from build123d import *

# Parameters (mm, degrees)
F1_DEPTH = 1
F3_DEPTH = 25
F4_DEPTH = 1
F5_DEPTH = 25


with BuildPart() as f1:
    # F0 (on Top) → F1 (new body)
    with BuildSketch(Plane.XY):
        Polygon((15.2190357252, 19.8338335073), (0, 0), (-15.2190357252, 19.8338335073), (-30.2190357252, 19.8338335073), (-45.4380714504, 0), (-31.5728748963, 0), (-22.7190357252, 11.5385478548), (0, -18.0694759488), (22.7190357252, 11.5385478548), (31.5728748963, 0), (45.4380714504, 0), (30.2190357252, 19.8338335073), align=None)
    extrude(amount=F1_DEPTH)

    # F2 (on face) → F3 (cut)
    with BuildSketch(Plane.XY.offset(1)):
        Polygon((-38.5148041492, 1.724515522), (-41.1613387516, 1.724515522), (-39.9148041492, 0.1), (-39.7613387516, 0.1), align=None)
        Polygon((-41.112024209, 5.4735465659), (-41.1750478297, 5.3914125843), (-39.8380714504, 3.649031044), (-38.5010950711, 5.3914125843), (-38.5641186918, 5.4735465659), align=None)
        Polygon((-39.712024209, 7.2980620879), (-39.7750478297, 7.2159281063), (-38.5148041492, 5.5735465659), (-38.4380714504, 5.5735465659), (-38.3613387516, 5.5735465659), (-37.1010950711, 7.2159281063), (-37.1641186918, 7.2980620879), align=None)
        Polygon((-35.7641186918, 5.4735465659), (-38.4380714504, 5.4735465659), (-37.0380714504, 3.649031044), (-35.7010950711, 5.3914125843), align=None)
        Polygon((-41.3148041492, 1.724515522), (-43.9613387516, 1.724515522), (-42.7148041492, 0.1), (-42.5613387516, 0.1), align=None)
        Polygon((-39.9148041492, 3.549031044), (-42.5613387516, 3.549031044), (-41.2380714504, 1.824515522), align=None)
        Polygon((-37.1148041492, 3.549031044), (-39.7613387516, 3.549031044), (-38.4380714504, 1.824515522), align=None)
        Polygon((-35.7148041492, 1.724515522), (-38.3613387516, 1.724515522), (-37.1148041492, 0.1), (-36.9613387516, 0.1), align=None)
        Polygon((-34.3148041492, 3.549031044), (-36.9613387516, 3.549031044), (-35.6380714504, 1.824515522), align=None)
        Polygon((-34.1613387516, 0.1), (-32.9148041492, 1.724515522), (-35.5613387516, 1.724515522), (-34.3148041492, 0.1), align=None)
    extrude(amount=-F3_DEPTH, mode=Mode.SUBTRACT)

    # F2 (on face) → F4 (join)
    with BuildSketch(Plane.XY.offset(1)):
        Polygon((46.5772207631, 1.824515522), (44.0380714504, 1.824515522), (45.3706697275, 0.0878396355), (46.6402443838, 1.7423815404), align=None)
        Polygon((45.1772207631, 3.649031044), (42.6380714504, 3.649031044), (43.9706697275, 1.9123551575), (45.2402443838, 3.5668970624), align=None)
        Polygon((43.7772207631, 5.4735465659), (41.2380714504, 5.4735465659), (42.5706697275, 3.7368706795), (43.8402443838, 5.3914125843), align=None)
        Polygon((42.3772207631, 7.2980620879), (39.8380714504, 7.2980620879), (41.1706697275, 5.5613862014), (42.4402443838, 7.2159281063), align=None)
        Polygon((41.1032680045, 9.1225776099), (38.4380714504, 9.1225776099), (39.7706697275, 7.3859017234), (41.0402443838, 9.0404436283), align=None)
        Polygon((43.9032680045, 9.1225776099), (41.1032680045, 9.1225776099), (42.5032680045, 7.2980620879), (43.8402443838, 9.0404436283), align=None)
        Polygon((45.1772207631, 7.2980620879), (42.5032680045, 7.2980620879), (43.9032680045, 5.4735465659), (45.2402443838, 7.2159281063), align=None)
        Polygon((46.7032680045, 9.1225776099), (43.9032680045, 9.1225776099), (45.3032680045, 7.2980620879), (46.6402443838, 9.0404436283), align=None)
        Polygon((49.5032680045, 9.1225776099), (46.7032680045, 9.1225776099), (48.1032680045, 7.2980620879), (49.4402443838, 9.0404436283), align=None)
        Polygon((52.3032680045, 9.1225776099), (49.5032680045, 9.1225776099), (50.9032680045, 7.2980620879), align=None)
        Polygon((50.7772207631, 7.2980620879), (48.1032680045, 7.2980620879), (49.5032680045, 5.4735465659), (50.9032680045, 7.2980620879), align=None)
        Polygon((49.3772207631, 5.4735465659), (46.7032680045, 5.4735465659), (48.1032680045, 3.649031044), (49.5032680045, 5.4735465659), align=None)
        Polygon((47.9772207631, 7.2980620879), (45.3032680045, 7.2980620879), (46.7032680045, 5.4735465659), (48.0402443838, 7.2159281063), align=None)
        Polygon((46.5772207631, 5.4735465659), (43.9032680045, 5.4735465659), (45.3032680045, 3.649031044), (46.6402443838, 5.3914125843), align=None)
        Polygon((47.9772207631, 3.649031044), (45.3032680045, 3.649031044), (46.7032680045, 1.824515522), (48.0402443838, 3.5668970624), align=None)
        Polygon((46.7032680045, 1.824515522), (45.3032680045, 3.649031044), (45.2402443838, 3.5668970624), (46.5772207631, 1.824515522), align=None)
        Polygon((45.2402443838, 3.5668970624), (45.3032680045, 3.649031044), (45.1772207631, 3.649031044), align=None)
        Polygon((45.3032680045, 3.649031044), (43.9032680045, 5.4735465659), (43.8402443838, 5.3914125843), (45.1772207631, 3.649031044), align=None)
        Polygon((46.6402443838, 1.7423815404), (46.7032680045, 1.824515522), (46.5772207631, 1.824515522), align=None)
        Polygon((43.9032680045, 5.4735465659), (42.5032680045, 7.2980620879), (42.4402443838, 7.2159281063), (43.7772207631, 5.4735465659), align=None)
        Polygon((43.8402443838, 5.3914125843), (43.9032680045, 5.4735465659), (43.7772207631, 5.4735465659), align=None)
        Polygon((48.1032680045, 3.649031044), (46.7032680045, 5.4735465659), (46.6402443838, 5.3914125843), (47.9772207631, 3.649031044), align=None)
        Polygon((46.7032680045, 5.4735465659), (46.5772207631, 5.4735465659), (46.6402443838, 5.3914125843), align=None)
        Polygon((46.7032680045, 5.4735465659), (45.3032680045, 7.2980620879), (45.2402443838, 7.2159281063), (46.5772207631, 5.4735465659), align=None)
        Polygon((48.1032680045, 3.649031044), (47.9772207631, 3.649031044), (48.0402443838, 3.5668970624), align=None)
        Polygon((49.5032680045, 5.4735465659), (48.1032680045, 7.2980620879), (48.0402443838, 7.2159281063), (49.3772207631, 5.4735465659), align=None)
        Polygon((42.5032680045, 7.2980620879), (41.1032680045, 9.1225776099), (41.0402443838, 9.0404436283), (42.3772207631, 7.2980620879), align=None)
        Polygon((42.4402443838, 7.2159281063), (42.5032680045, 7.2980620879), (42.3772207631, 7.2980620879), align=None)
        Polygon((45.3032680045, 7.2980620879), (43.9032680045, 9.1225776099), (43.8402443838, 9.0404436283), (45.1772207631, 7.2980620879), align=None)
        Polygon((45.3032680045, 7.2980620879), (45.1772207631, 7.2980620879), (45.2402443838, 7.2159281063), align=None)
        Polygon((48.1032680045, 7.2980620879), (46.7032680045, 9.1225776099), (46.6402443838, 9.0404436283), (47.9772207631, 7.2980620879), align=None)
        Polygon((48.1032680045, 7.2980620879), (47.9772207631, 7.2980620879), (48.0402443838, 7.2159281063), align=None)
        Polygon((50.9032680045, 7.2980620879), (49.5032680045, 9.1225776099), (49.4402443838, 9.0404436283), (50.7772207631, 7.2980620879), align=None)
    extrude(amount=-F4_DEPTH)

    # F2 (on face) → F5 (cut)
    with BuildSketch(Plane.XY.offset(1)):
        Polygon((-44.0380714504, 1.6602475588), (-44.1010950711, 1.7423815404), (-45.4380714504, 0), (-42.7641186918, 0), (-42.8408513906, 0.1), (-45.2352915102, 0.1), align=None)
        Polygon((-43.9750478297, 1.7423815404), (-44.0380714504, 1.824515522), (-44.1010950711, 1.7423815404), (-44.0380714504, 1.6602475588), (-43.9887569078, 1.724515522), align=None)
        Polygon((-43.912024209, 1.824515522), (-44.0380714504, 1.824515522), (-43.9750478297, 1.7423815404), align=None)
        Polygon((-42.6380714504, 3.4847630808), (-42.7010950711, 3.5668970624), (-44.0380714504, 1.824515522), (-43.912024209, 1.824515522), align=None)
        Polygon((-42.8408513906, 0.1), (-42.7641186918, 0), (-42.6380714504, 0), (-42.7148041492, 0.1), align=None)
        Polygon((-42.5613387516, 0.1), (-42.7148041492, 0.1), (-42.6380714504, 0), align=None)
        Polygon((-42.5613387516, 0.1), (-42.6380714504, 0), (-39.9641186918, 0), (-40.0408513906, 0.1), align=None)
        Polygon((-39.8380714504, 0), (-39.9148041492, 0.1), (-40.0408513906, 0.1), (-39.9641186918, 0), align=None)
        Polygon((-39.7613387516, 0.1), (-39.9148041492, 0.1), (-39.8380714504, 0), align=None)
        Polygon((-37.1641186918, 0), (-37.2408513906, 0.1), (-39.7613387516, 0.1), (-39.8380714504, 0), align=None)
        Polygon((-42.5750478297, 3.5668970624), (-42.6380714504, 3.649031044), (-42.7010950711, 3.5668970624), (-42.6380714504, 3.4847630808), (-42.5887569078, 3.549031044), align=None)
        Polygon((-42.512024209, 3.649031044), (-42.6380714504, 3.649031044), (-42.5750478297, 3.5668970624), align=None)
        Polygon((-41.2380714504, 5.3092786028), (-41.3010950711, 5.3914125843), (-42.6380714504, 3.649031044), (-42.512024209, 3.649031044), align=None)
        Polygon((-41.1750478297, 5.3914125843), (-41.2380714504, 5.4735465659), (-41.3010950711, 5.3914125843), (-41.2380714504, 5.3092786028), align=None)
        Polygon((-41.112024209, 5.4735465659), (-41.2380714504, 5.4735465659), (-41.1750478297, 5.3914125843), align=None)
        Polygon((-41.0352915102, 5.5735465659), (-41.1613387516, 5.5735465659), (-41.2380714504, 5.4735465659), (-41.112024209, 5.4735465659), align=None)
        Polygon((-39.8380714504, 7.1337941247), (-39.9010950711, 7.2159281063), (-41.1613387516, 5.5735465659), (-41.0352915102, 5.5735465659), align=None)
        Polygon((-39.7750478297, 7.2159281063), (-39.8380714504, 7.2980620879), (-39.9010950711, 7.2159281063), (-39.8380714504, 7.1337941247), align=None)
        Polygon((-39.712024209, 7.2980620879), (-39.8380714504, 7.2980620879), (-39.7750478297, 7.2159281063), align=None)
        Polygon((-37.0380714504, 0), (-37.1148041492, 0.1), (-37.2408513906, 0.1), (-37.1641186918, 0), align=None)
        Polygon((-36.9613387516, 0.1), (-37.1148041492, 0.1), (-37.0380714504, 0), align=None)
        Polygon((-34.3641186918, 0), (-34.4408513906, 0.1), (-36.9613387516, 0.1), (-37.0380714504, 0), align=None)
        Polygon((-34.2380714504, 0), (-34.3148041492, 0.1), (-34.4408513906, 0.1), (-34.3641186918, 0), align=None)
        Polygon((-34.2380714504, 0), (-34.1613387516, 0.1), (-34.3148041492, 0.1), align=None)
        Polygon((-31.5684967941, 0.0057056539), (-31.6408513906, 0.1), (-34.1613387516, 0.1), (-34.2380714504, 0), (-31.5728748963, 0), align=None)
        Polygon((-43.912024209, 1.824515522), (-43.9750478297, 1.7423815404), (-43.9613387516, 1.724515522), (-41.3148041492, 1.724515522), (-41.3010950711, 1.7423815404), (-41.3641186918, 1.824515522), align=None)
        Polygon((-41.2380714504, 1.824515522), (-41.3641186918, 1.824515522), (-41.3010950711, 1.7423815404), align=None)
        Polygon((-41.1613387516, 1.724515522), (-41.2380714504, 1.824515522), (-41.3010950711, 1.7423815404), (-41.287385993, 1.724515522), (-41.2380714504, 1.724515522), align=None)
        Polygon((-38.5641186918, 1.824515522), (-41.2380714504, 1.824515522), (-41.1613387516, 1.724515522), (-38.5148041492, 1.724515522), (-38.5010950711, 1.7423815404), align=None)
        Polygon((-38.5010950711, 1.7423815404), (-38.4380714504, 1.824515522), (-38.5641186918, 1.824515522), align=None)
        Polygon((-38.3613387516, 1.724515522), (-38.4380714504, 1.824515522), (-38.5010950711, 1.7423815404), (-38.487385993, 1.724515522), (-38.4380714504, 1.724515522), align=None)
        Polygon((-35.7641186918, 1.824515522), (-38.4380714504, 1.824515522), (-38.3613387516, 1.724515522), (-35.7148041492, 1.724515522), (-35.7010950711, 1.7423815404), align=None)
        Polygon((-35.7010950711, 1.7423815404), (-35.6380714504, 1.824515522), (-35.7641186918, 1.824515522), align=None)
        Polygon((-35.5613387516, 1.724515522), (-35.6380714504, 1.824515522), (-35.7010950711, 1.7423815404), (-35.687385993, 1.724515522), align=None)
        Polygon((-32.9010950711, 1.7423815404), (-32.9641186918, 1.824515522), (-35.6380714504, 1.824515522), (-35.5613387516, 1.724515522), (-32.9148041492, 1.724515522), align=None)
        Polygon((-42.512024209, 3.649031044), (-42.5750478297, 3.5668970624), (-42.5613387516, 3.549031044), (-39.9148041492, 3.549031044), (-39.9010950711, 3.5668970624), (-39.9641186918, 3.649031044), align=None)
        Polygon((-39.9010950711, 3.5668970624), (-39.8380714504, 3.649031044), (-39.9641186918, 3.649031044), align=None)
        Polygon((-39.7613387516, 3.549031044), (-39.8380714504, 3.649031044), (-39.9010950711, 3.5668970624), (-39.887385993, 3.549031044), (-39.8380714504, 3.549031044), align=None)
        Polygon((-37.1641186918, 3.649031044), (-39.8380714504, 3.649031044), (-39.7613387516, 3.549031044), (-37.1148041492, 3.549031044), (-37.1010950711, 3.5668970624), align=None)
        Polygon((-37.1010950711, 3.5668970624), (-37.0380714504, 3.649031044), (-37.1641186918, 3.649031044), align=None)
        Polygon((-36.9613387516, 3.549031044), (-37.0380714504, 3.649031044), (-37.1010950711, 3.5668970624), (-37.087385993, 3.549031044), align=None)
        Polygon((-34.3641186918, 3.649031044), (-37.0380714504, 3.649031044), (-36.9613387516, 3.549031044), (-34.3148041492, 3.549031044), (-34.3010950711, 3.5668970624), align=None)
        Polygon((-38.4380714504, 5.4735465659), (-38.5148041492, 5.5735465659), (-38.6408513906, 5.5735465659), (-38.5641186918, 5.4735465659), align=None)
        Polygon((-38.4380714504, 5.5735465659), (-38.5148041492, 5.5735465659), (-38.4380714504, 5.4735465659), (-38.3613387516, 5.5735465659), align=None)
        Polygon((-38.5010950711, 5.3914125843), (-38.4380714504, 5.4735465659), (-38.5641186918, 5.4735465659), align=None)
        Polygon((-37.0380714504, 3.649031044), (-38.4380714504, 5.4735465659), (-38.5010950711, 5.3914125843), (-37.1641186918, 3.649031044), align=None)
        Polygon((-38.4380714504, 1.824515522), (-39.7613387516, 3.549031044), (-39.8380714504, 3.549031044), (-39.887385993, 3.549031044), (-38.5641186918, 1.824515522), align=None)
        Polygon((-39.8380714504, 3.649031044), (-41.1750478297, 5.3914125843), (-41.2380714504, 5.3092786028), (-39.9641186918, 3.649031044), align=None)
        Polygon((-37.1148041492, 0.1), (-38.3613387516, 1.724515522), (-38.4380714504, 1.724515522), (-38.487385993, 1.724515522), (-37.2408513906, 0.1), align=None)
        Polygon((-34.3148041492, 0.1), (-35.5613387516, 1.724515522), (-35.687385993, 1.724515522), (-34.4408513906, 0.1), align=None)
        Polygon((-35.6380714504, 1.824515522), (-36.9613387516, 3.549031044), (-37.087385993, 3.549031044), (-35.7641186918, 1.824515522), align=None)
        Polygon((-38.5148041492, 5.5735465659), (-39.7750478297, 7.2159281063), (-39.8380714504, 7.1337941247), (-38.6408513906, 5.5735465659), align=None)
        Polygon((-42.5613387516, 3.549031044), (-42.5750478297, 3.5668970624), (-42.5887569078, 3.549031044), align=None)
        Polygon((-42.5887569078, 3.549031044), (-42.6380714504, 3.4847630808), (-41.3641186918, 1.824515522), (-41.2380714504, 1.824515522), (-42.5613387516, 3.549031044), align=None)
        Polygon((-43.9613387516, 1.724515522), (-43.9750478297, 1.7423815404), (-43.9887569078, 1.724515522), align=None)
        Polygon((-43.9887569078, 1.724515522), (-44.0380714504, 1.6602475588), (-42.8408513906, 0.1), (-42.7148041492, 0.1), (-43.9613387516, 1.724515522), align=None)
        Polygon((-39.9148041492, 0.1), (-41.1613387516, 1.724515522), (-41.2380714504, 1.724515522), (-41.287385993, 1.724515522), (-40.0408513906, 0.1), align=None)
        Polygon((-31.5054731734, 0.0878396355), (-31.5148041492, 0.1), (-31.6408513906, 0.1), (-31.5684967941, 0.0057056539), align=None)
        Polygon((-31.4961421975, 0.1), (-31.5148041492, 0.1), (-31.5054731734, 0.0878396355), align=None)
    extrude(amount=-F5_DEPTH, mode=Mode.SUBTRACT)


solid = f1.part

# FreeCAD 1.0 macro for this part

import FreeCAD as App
import Part
import Sketcher

V = App.Vector
Q = App.Units.Quantity


def add_polygon(sketch, points):
    """Adds a closed chain of lines whose ends are joined by coincident constraints."""
    first, n = sketch.GeometryCount, len(points)
    for a, b in zip(points, points[1:] + points[:1]):
        sketch.addGeometry(Part.LineSegment(App.Vector(*a, 0), App.Vector(*b, 0)), False)
    for i in range(n):
        sketch.addConstraint(Sketcher.Constraint("Coincident", first + i, 2, first + (i + 1) % n, 1))

doc = App.newDocument("Part")
body = doc.addObject("PartDesign::Body", "Body")
body.AllowCompound = True

# Sketch on XY plane
sketch1 = doc.addObject("Sketcher::SketchObject", "Sketch")
body.addObject(sketch1)
sketch1.AttachmentSupport = (doc.XY_Plane, [""])
sketch1.MapMode = "FlatFace"
add_polygon(sketch1, [(15, 20), (0, 0), (-15, 20), (-30, 20), (-45, 0), (-32, 0), (-23, 12), (0, -18), (23, 12), (32, 0), (45, 0), (30, 20)])  # lines 0-11
sketch1.addConstraint(Sketcher.Constraint("Horizontal", 2))
sketch1.addConstraint(Sketcher.Constraint("Horizontal", 4))
sketch1.addConstraint(Sketcher.Constraint("Horizontal", 9))
sketch1.addConstraint(Sketcher.Constraint("Horizontal", 11))
sketch1.addConstraint(Sketcher.Constraint("Coincident", 0, 2, -1, 1))
sketch1.addConstraint(Sketcher.Constraint("Symmetric", 4, 2, 8, 2, -1, 1))
sketch1.addConstraint(Sketcher.Constraint("Symmetric", 5, 2, 7, 2, -2))
sketch1.addConstraint(Sketcher.Constraint("Symmetric", 3, 2, 9, 2, -2))
sketch1.addConstraint(Sketcher.Constraint("Symmetric", 2, 2, 10, 2, -2))
sketch1.addConstraint(Sketcher.Constraint("PointOnObject", 6, 2, -2))
sketch1.addConstraint(Sketcher.Constraint("Parallel", 0, 3))
sketch1.addConstraint(Sketcher.Constraint("Parallel", 3, 5))
sketch1.addConstraint(Sketcher.Constraint("Parallel", 1, 6))
sketch1.addConstraint(Sketcher.Constraint("Parallel", 5, 7))
sketch1.addConstraint(Sketcher.Constraint("DistanceX", 2, 2, 2, 1, Q("15 mm")))
sketch1.addConstraint(Sketcher.Constraint("Distance", 0, Q("25 mm")))
sketch1.addConstraint(Sketcher.Constraint("Angle", 0, Q("-127.5 deg")))
sketch1.addConstraint(Sketcher.Constraint("DistanceX", 2, 2, 5, 2, Q("7.5 mm")))
sketch1.addConstraint(Sketcher.Constraint("Distance", 5, Q("14.544021 mm")))
pad1 = doc.addObject("PartDesign::Pad", "Pad")
body.addObject(pad1)
pad1.Profile = sketch1
pad1.Length = 1

# Sketch on XY plane
sketch2 = doc.addObject("Sketcher::SketchObject", "Sketch001")
body.addObject(sketch2)
sketch2.AttachmentSupport = (doc.XY_Plane, [""])
sketch2.MapMode = "FlatFace"
sketch2.AttachmentOffset = App.Placement(V(0, 0, 1), App.Rotation())
add_polygon(sketch2, [(-38.51, 1.72), (-41.16, 1.72), (-39.91, 0.1), (-39.76, 0.1)])  # lines 0-3
add_polygon(sketch2, [(-41.11, 5.47), (-41.18, 5.39), (-39.84, 3.65), (-38.5, 5.39), (-38.56, 5.47)])  # lines 4-8
add_polygon(sketch2, [(-39.71, 7.3), (-39.78, 7.22), (-38.51, 5.57), (-38.36, 5.57), (-37.1, 7.22), (-37.16, 7.3)])  # lines 9-14
add_polygon(sketch2, [(-35.76, 5.47), (-38.44, 5.47), (-37.04, 3.65), (-35.7, 5.39)])  # lines 15-18
add_polygon(sketch2, [(-41.31, 1.72), (-43.96, 1.72), (-42.71, 0.1), (-42.56, 0.1)])  # lines 19-22
add_polygon(sketch2, [(-39.91, 3.55), (-42.56, 3.55), (-41.24, 1.82)])  # lines 23-25
add_polygon(sketch2, [(-37.11, 3.55), (-39.76, 3.55), (-38.44, 1.82)])  # lines 26-28
add_polygon(sketch2, [(-35.71, 1.72), (-38.36, 1.72), (-37.11, 0.1), (-36.96, 0.1)])  # lines 29-32
add_polygon(sketch2, [(-34.31, 3.55), (-36.96, 3.55), (-35.64, 1.82)])  # lines 33-35
add_polygon(sketch2, [(-34.16, 0.1), (-32.91, 1.72), (-35.56, 1.72), (-34.31, 0.1)])  # lines 36-39
sketch2.addConstraint(Sketcher.Constraint("Horizontal", 0))
sketch2.addConstraint(Sketcher.Constraint("Horizontal", 2))
sketch2.addConstraint(Sketcher.Constraint("Horizontal", 8))
sketch2.addConstraint(Sketcher.Constraint("Horizontal", 11))
sketch2.addConstraint(Sketcher.Constraint("Horizontal", 14))
sketch2.addConstraint(Sketcher.Constraint("Horizontal", 15))
sketch2.addConstraint(Sketcher.Constraint("Horizontal", 19))
sketch2.addConstraint(Sketcher.Constraint("Horizontal", 21))
sketch2.addConstraint(Sketcher.Constraint("Horizontal", 23))
sketch2.addConstraint(Sketcher.Constraint("Horizontal", 26))
sketch2.addConstraint(Sketcher.Constraint("Horizontal", 29))
sketch2.addConstraint(Sketcher.Constraint("Horizontal", 31))
sketch2.addConstraint(Sketcher.Constraint("Horizontal", 33))
sketch2.addConstraint(Sketcher.Constraint("Horizontal", 37))
sketch2.addConstraint(Sketcher.Constraint("Horizontal", 39))
sketch2.addConstraint(Sketcher.Constraint("Parallel", 3, 4))
sketch2.addConstraint(Sketcher.Constraint("Parallel", 1, 5))
sketch2.addConstraint(Sketcher.Constraint("Parallel", 4, 6))
sketch2.addConstraint(Sketcher.Constraint("Parallel", 5, 7))
sketch2.addConstraint(Sketcher.Constraint("Parallel", 6, 9))
sketch2.addConstraint(Sketcher.Constraint("Parallel", 7, 10))
sketch2.addConstraint(Sketcher.Constraint("Parallel", 9, 12))
sketch2.addConstraint(Sketcher.Constraint("Parallel", 10, 13))
sketch2.addConstraint(Sketcher.Constraint("Parallel", 13, 16))
sketch2.addConstraint(Sketcher.Constraint("Parallel", 12, 17))
sketch2.addConstraint(Sketcher.Constraint("Parallel", 16, 18))
sketch2.addConstraint(Sketcher.Constraint("Parallel", 18, 20))
sketch2.addConstraint(Sketcher.Constraint("Parallel", 17, 22))
sketch2.addConstraint(Sketcher.Constraint("Parallel", 20, 24))
sketch2.addConstraint(Sketcher.Constraint("Parallel", 22, 25))
sketch2.addConstraint(Sketcher.Constraint("Parallel", 24, 27))
sketch2.addConstraint(Sketcher.Constraint("Parallel", 25, 28))
sketch2.addConstraint(Sketcher.Constraint("Parallel", 27, 30))
sketch2.addConstraint(Sketcher.Constraint("Parallel", 28, 32))
sketch2.addConstraint(Sketcher.Constraint("Parallel", 30, 34))
sketch2.addConstraint(Sketcher.Constraint("Parallel", 32, 35))
sketch2.addConstraint(Sketcher.Constraint("Parallel", 35, 36))
sketch2.addConstraint(Sketcher.Constraint("Parallel", 34, 38))
sketch2.addConstraint(Sketcher.Constraint("Horizontal", 4, 2, 6, 2))
sketch2.addConstraint(Sketcher.Constraint("Horizontal", 9, 2, 12, 2))
sketch2.addConstraint(Sketcher.Constraint("Horizontal", 8, 2, 15, 2))
sketch2.addConstraint(Sketcher.Constraint("Horizontal", 5, 2, 16, 2))
sketch2.addConstraint(Sketcher.Constraint("Horizontal", 6, 2, 17, 2))
sketch2.addConstraint(Sketcher.Constraint("Horizontal", 3, 2, 19, 2))
sketch2.addConstraint(Sketcher.Constraint("Horizontal", 2, 2, 20, 2))
sketch2.addConstraint(Sketcher.Constraint("Horizontal", 25, 2, 26, 2))
sketch2.addConstraint(Sketcher.Constraint("Horizontal", 24, 2, 27, 2))
sketch2.addConstraint(Sketcher.Constraint("Horizontal", 22, 2, 29, 2))
sketch2.addConstraint(Sketcher.Constraint("Horizontal", 21, 2, 30, 2))
sketch2.addConstraint(Sketcher.Constraint("Horizontal", 28, 2, 33, 2))
sketch2.addConstraint(Sketcher.Constraint("Horizontal", 27, 2, 34, 2))
sketch2.addConstraint(Sketcher.Constraint("Horizontal", 32, 2, 36, 2))
sketch2.addConstraint(Sketcher.Constraint("Horizontal", 31, 2, 38, 2))
sketch2.addConstraint(Sketcher.Constraint("Vertical", 3, 2, 10, 2))
sketch2.addConstraint(Sketcher.Constraint("Vertical", 21, 2, 23, 2))
sketch2.addConstraint(Sketcher.Constraint("Vertical", 1, 2, 25, 2))
sketch2.addConstraint(Sketcher.Constraint("Vertical", 2, 2, 26, 2))
sketch2.addConstraint(Sketcher.Constraint("Vertical", 15, 2, 27, 2))
sketch2.addConstraint(Sketcher.Constraint("Vertical", 11, 2, 29, 2))
sketch2.addConstraint(Sketcher.Constraint("Vertical", 28, 2, 30, 2))
sketch2.addConstraint(Sketcher.Constraint("Vertical", 31, 2, 33, 2))
sketch2.addConstraint(Sketcher.Constraint("Vertical", 35, 2, 38, 2))
sketch2.addConstraint(Sketcher.Constraint("Equal", 2, 11))
sketch2.addConstraint(Sketcher.Constraint("Equal", 8, 14))
sketch2.addConstraint(Sketcher.Constraint("Equal", 0, 19))
sketch2.addConstraint(Sketcher.Constraint("Equal", 26, 29))
sketch2.addConstraint(Sketcher.Constraint("Equal", 33, 37))
sketch2.addConstraint(Sketcher.Constraint("Equal", 1, 3))
sketch2.addConstraint(Sketcher.Constraint("Equal", 7, 9))
sketch2.addConstraint(Sketcher.Constraint("Angle", 1, Q("-52.5 deg")))
sketch2.addConstraint(Sketcher.Constraint("DistanceY", -1, 1, 1, 2, Q("0.1 mm")))
sketch2.addConstraint(Sketcher.Constraint("DistanceX", 0, 2, 2, 2, Q("1.4 mm")))
sketch2.addConstraint(Sketcher.Constraint("DistanceX", 4, 2, 9, 2, Q("1.4 mm")))
sketch2.addConstraint(Sketcher.Constraint("DistanceY", 7, 2, 10, 2, Q("0.1 mm")))
sketch2.addConstraint(Sketcher.Constraint("DistanceX", 15, 2, 16, 2, Q("1.4 mm")))
sketch2.addConstraint(Sketcher.Constraint("DistanceY", 0, 2, 24, 2, Q("0.1 mm")))
sketch2.addConstraint(Sketcher.Constraint("DistanceY", 25, 2, 5, 2, Q("0.1 mm")))
sketch2.addConstraint(Sketcher.Constraint("DistanceX", 0, 2, 0, 1, Q("2.646535 mm")))
sketch2.addConstraint(Sketcher.Constraint("DistanceX", 8, 2, 8, 1, Q("2.547906 mm")))
sketch2.addConstraint(Sketcher.Constraint("DistanceX", 0, 2, -1, 1, Q("41.161339 mm")))
pocket1 = doc.addObject("PartDesign::Pocket", "Pocket")
body.addObject(pocket1)
pocket1.Profile = sketch2
pocket1.Length = 25

# Sketch on XY plane
sketch3 = doc.addObject("Sketcher::SketchObject", "Sketch002")
body.addObject(sketch3)
sketch3.AttachmentSupport = (doc.XY_Plane, [""])
sketch3.MapMode = "FlatFace"
sketch3.AttachmentOffset = App.Placement(V(0, 0, 1), App.Rotation())
add_polygon(sketch3, [(38.44, 9.12), (39.77, 7.39), (41.04, 9.04), (42.38, 7.3), (39.84, 7.3), (41.17, 5.56), (42.44, 7.22), (43.78, 5.47), (41.24, 5.47), (42.57, 3.74), (43.84, 5.39), (45.18, 3.65), (42.64, 3.65), (43.97, 1.91), (45.24, 3.57), (46.58, 1.82), (44.04, 1.82), (45.37, 0.09), (46.64, 1.74), (46.7, 1.82), (48.04, 3.57), (48.1, 3.65), (49.5, 5.47), (52.3, 9.12)])  # lines 0-23
add_polygon(sketch3, [(50.78, 7.3), (48.1, 7.3), (49.44, 9.04)])  # lines 24-26
add_polygon(sketch3, [(43.9, 5.47), (45.24, 7.22), (46.58, 5.47)])  # lines 27-29
add_polygon(sketch3, [(46.64, 5.39), (47.98, 3.65), (45.3, 3.65)])  # lines 30-32
add_polygon(sketch3, [(46.7, 5.47), (48.04, 7.22), (49.38, 5.47)])  # lines 33-35
add_polygon(sketch3, [(43.84, 9.04), (45.18, 7.3), (42.5, 7.3)])  # lines 36-38
add_polygon(sketch3, [(46.64, 9.04), (47.98, 7.3), (45.3, 7.3)])  # lines 39-41
sketch3.addConstraint(Sketcher.Constraint("Horizontal", 3))
sketch3.addConstraint(Sketcher.Constraint("Horizontal", 7))
sketch3.addConstraint(Sketcher.Constraint("Horizontal", 11))
sketch3.addConstraint(Sketcher.Constraint("Horizontal", 15))
sketch3.addConstraint(Sketcher.Constraint("Horizontal", 23))
sketch3.addConstraint(Sketcher.Constraint("Horizontal", 24))
sketch3.addConstraint(Sketcher.Constraint("Horizontal", 29))
sketch3.addConstraint(Sketcher.Constraint("Horizontal", 31))
sketch3.addConstraint(Sketcher.Constraint("Horizontal", 35))
sketch3.addConstraint(Sketcher.Constraint("Horizontal", 37))
sketch3.addConstraint(Sketcher.Constraint("Horizontal", 40))
sketch3.addConstraint(Sketcher.Constraint("Parallel", 0, 2))
sketch3.addConstraint(Sketcher.Constraint("Parallel", 2, 4))
sketch3.addConstraint(Sketcher.Constraint("Parallel", 1, 5))
sketch3.addConstraint(Sketcher.Constraint("Parallel", 4, 6))
sketch3.addConstraint(Sketcher.Constraint("Parallel", 6, 8))
sketch3.addConstraint(Sketcher.Constraint("Parallel", 5, 9))
sketch3.addConstraint(Sketcher.Constraint("Parallel", 8, 10))
sketch3.addConstraint(Sketcher.Constraint("Parallel", 10, 12))
sketch3.addConstraint(Sketcher.Constraint("Parallel", 9, 13))
sketch3.addConstraint(Sketcher.Constraint("Parallel", 12, 14))
sketch3.addConstraint(Sketcher.Constraint("Parallel", 14, 16))
sketch3.addConstraint(Sketcher.Constraint("Parallel", 13, 17))
sketch3.addConstraint(Sketcher.Constraint("Parallel", 17, 18))
sketch3.addConstraint(Sketcher.Constraint("Parallel", 18, 19))
sketch3.addConstraint(Sketcher.Constraint("Parallel", 19, 20))
sketch3.addConstraint(Sketcher.Constraint("Parallel", 20, 21))
sketch3.addConstraint(Sketcher.Constraint("Parallel", 21, 22))
sketch3.addConstraint(Sketcher.Constraint("Parallel", 22, 25))
sketch3.addConstraint(Sketcher.Constraint("Parallel", 16, 26))
sketch3.addConstraint(Sketcher.Constraint("Parallel", 25, 27))
sketch3.addConstraint(Sketcher.Constraint("Parallel", 26, 28))
sketch3.addConstraint(Sketcher.Constraint("Parallel", 28, 30))
sketch3.addConstraint(Sketcher.Constraint("Parallel", 27, 32))
sketch3.addConstraint(Sketcher.Constraint("Parallel", 32, 33))
sketch3.addConstraint(Sketcher.Constraint("Parallel", 30, 34))
sketch3.addConstraint(Sketcher.Constraint("Parallel", 34, 36))
sketch3.addConstraint(Sketcher.Constraint("Parallel", 33, 38))
sketch3.addConstraint(Sketcher.Constraint("Parallel", 36, 39))
sketch3.addConstraint(Sketcher.Constraint("Parallel", 38, 41))
sketch3.addConstraint(Sketcher.Constraint("Horizontal", 15, 2, 18, 2))
sketch3.addConstraint(Sketcher.Constraint("Horizontal", 13, 2, 19, 2))
sketch3.addConstraint(Sketcher.Constraint("Horizontal", 11, 2, 20, 2))
sketch3.addConstraint(Sketcher.Constraint("Horizontal", 7, 2, 21, 2))
sketch3.addConstraint(Sketcher.Constraint("Horizontal", 3, 2, 24, 2))
sketch3.addConstraint(Sketcher.Constraint("Horizontal", 1, 2, 25, 2))
sketch3.addConstraint(Sketcher.Constraint("Horizontal", 5, 2, 27, 2))
sketch3.addConstraint(Sketcher.Constraint("Horizontal", 21, 2, 28, 2))
sketch3.addConstraint(Sketcher.Constraint("Horizontal", 20, 2, 30, 2))
sketch3.addConstraint(Sketcher.Constraint("Horizontal", 9, 2, 32, 2))
sketch3.addConstraint(Sketcher.Constraint("Horizontal", 27, 2, 33, 2))
sketch3.addConstraint(Sketcher.Constraint("Horizontal", 29, 2, 34, 2))
sketch3.addConstraint(Sketcher.Constraint("Horizontal", 26, 2, 36, 2))
sketch3.addConstraint(Sketcher.Constraint("Horizontal", 25, 2, 38, 2))
sketch3.addConstraint(Sketcher.Constraint("Horizontal", 37, 2, 39, 2))
sketch3.addConstraint(Sketcher.Constraint("Horizontal", 38, 2, 41, 2))
sketch3.addConstraint(Sketcher.Constraint("Vertical", 20, 2, 24, 2))
sketch3.addConstraint(Sketcher.Constraint("Vertical", 13, 2, 27, 2))
sketch3.addConstraint(Sketcher.Constraint("Vertical", 14, 2, 28, 2))
sketch3.addConstraint(Sketcher.Constraint("Vertical", 17, 2, 32, 2))
sketch3.addConstraint(Sketcher.Constraint("Vertical", 19, 2, 33, 2))
sketch3.addConstraint(Sketcher.Constraint("Vertical", 10, 2, 36, 2))
sketch3.addConstraint(Sketcher.Constraint("Vertical", 9, 2, 38, 2))
sketch3.addConstraint(Sketcher.Constraint("Vertical", 30, 2, 39, 2))
sketch3.addConstraint(Sketcher.Constraint("Equal", 3, 7))
sketch3.addConstraint(Sketcher.Constraint("Equal", 7, 11))
sketch3.addConstraint(Sketcher.Constraint("Equal", 11, 15))
sketch3.addConstraint(Sketcher.Constraint("Equal", 24, 29))
sketch3.addConstraint(Sketcher.Constraint("Equal", 0, 4))
sketch3.addConstraint(Sketcher.Constraint("Equal", 1, 5))
sketch3.addConstraint(Sketcher.Constraint("Equal", 4, 8))
sketch3.addConstraint(Sketcher.Constraint("Equal", 5, 9))
sketch3.addConstraint(Sketcher.Constraint("Equal", 8, 12))
sketch3.addConstraint(Sketcher.Constraint("Equal", 9, 13))
sketch3.addConstraint(Sketcher.Constraint("Equal", 12, 16))
sketch3.addConstraint(Sketcher.Constraint("Equal", 13, 17))
sketch3.addConstraint(Sketcher.Constraint("Equal", 14, 19))
sketch3.addConstraint(Sketcher.Constraint("Angle", 0, Q("-52.5 deg")))
sketch3.addConstraint(Sketcher.Constraint("DistanceX", 0, 2, 4, 2, Q("1.4 mm")))
sketch3.addConstraint(Sketcher.Constraint("DistanceX", 17, 2, 19, 2, Q("1.4 mm")))
sketch3.addConstraint(Sketcher.Constraint("DistanceX", 3, 2, 3, 1, Q("2.539149 mm")))
sketch3.addConstraint(Sketcher.Constraint("DistanceY", -1, 1, 0, 2, Q("7.385902 mm")))
sketch3.addConstraint(Sketcher.Constraint("DistanceX", 0, 2, 3, 2, Q("0.067402 mm")))
sketch3.addConstraint(Sketcher.Constraint("DistanceX", -1, 1, 0, 2, Q("39.77067 mm")))
pad2 = doc.addObject("PartDesign::Pad", "Pad001")
body.addObject(pad2)
pad2.Profile = sketch3
pad2.Length = 1
pad2.Reversed = True

# Sketch on XY plane
sketch4 = doc.addObject("Sketcher::SketchObject", "Sketch003")
body.addObject(sketch4)
sketch4.AttachmentSupport = (doc.XY_Plane, [""])
sketch4.MapMode = "FlatFace"
sketch4.AttachmentOffset = App.Placement(V(0, 0, 1), App.Rotation())
add_polygon(sketch4, [(-44.101, 1.742), (-45.438, 0), (-31.573, 0), (-31.568, 0.006), (-31.505, 0.088), (-31.496, 0.1), (-34.315, 0.1), (-35.561, 1.725), (-32.915, 1.725), (-32.901, 1.742), (-32.964, 1.825), (-35.638, 1.825), (-36.961, 3.549), (-34.315, 3.549), (-34.301, 3.567), (-34.364, 3.649), (-37.038, 3.649), (-38.438, 5.474), (-38.361, 5.574), (-38.515, 5.574), (-39.775, 7.216), (-39.712, 7.298), (-39.838, 7.298), (-39.901, 7.216), (-41.161, 5.574), (-41.238, 5.474), (-41.301, 5.391), (-42.638, 3.649), (-42.701, 3.567), (-44.038, 1.825)])  # lines 0-29
add_polygon(sketch4, [(-38.641, 5.574), (-38.564, 5.474), (-38.501, 5.391), (-37.164, 3.649), (-39.838, 3.649), (-41.175, 5.391), (-41.112, 5.474), (-41.035, 5.574), (-39.838, 7.134)])  # lines 30-38
add_polygon(sketch4, [(-35.764, 1.825), (-38.438, 1.825), (-39.761, 3.549), (-37.115, 3.549), (-37.101, 3.567), (-37.087, 3.549)])  # lines 39-44
add_polygon(sketch4, [(-34.441, 0.1), (-37.115, 0.1), (-38.361, 1.725), (-35.715, 1.725), (-35.701, 1.742), (-35.687, 1.725)])  # lines 45-50
add_polygon(sketch4, [(-37.241, 0.1), (-39.915, 0.1), (-41.161, 1.725), (-38.515, 1.725), (-38.501, 1.742), (-38.487, 1.725)])  # lines 51-56
add_polygon(sketch4, [(-40.041, 0.1), (-42.715, 0.1), (-43.961, 1.725), (-41.315, 1.725), (-41.301, 1.742), (-41.287, 1.725)])  # lines 57-62
add_polygon(sketch4, [(-42.841, 0.1), (-45.235, 0.1), (-44.038, 1.66)])  # lines 63-65
add_polygon(sketch4, [(-39.964, 3.649), (-42.512, 3.649), (-41.238, 5.309)])  # lines 66-68
add_polygon(sketch4, [(-38.564, 1.825), (-41.238, 1.825), (-42.561, 3.549), (-39.915, 3.549), (-39.901, 3.567), (-39.887, 3.549)])  # lines 69-74
add_polygon(sketch4, [(-41.364, 1.825), (-43.912, 1.825), (-42.638, 3.485)])  # lines 75-77
sketch4.addConstraint(Sketcher.Constraint("Horizontal", 1))
sketch4.addConstraint(Sketcher.Constraint("Horizontal", 5))
sketch4.addConstraint(Sketcher.Constraint("Horizontal", 7))
sketch4.addConstraint(Sketcher.Constraint("Horizontal", 10))
sketch4.addConstraint(Sketcher.Constraint("Horizontal", 12))
sketch4.addConstraint(Sketcher.Constraint("Horizontal", 15))
sketch4.addConstraint(Sketcher.Constraint("Horizontal", 18))
sketch4.addConstraint(Sketcher.Constraint("Horizontal", 21))
sketch4.addConstraint(Sketcher.Constraint("Horizontal", 33))
sketch4.addConstraint(Sketcher.Constraint("Horizontal", 39))
sketch4.addConstraint(Sketcher.Constraint("Horizontal", 41))
sketch4.addConstraint(Sketcher.Constraint("Horizontal", 45))
sketch4.addConstraint(Sketcher.Constraint("Horizontal", 47))
sketch4.addConstraint(Sketcher.Constraint("Horizontal", 51))
sketch4.addConstraint(Sketcher.Constraint("Horizontal", 53))
sketch4.addConstraint(Sketcher.Constraint("Horizontal", 57))
sketch4.addConstraint(Sketcher.Constraint("Horizontal", 59))
sketch4.addConstraint(Sketcher.Constraint("Horizontal", 63))
sketch4.addConstraint(Sketcher.Constraint("Horizontal", 66))
sketch4.addConstraint(Sketcher.Constraint("Horizontal", 69))
sketch4.addConstraint(Sketcher.Constraint("Horizontal", 71))
sketch4.addConstraint(Sketcher.Constraint("Horizontal", 75))
sketch4.addConstraint(Sketcher.Constraint("PointOnObject", 0, 2, -1))
sketch4.addConstraint(Sketcher.Constraint("Parallel", 0, 2))
sketch4.addConstraint(Sketcher.Constraint("Parallel", 2, 3))
sketch4.addConstraint(Sketcher.Constraint("Parallel", 3, 4))
sketch4.addConstraint(Sketcher.Constraint("Parallel", 4, 8))
sketch4.addConstraint(Sketcher.Constraint("Parallel", 6, 9))
sketch4.addConstraint(Sketcher.Constraint("Parallel", 9, 11))
sketch4.addConstraint(Sketcher.Constraint("Parallel", 8, 13))
sketch4.addConstraint(Sketcher.Constraint("Parallel", 11, 14))
sketch4.addConstraint(Sketcher.Constraint("Parallel", 14, 16))
sketch4.addConstraint(Sketcher.Constraint("Parallel", 13, 17))
sketch4.addConstraint(Sketcher.Constraint("Parallel", 16, 19))
sketch4.addConstraint(Sketcher.Constraint("Parallel", 17, 20))
sketch4.addConstraint(Sketcher.Constraint("Parallel", 20, 22))
sketch4.addConstraint(Sketcher.Constraint("Parallel", 22, 23))
sketch4.addConstraint(Sketcher.Constraint("Parallel", 23, 24))
sketch4.addConstraint(Sketcher.Constraint("Parallel", 24, 25))
sketch4.addConstraint(Sketcher.Constraint("Parallel", 25, 26))
sketch4.addConstraint(Sketcher.Constraint("Parallel", 26, 27))
sketch4.addConstraint(Sketcher.Constraint("Parallel", 27, 28))
sketch4.addConstraint(Sketcher.Constraint("Parallel", 28, 29))
sketch4.addConstraint(Sketcher.Constraint("Parallel", 19, 30))
sketch4.addConstraint(Sketcher.Constraint("Parallel", 30, 31))
sketch4.addConstraint(Sketcher.Constraint("Parallel", 31, 32))
sketch4.addConstraint(Sketcher.Constraint("Parallel", 32, 34))
sketch4.addConstraint(Sketcher.Constraint("Parallel", 29, 35))
sketch4.addConstraint(Sketcher.Constraint("Parallel", 35, 36))
sketch4.addConstraint(Sketcher.Constraint("Parallel", 36, 37))
sketch4.addConstraint(Sketcher.Constraint("Parallel", 34, 38))
sketch4.addConstraint(Sketcher.Constraint("Parallel", 38, 40))
sketch4.addConstraint(Sketcher.Constraint("Parallel", 37, 42))
sketch4.addConstraint(Sketcher.Constraint("Parallel", 40, 43))
sketch4.addConstraint(Sketcher.Constraint("Parallel", 43, 44))
sketch4.addConstraint(Sketcher.Constraint("Parallel", 44, 46))
sketch4.addConstraint(Sketcher.Constraint("Parallel", 42, 48))
sketch4.addConstraint(Sketcher.Constraint("Parallel", 46, 49))
sketch4.addConstraint(Sketcher.Constraint("Parallel", 49, 50))
sketch4.addConstraint(Sketcher.Constraint("Parallel", 50, 52))
sketch4.addConstraint(Sketcher.Constraint("Parallel", 48, 54))
sketch4.addConstraint(Sketcher.Constraint("Parallel", 52, 55))
sketch4.addConstraint(Sketcher.Constraint("Parallel", 55, 56))
sketch4.addConstraint(Sketcher.Constraint("Parallel", 56, 58))
sketch4.addConstraint(Sketcher.Constraint("Parallel", 54, 60))
sketch4.addConstraint(Sketcher.Constraint("Parallel", 58, 61))
sketch4.addConstraint(Sketcher.Constraint("Parallel", 61, 62))
sketch4.addConstraint(Sketcher.Constraint("Parallel", 60, 64))
sketch4.addConstraint(Sketcher.Constraint("Parallel", 62, 65))
sketch4.addConstraint(Sketcher.Constraint("Parallel", 64, 67))
sketch4.addConstraint(Sketcher.Constraint("Parallel", 65, 68))
sketch4.addConstraint(Sketcher.Constraint("Parallel", 68, 70))
sketch4.addConstraint(Sketcher.Constraint("Parallel", 67, 72))
sketch4.addConstraint(Sketcher.Constraint("Parallel", 70, 73))
sketch4.addConstraint(Sketcher.Constraint("Parallel", 73, 74))
sketch4.addConstraint(Sketcher.Constraint("Parallel", 72, 76))
sketch4.addConstraint(Sketcher.Constraint("Parallel", 74, 77))
sketch4.addConstraint(Sketcher.Constraint("Horizontal", 19, 2, 22, 2))
sketch4.addConstraint(Sketcher.Constraint("Horizontal", 18, 2, 23, 2))
sketch4.addConstraint(Sketcher.Constraint("Horizontal", 16, 2, 24, 2))
sketch4.addConstraint(Sketcher.Constraint("Horizontal", 15, 2, 26, 2))
sketch4.addConstraint(Sketcher.Constraint("Horizontal", 13, 2, 27, 2))
sketch4.addConstraint(Sketcher.Constraint("Horizontal", 10, 2, 28, 2))
sketch4.addConstraint(Sketcher.Constraint("Horizontal", 8, 2, 29, 2))
sketch4.addConstraint(Sketcher.Constraint("Horizontal", 24, 2, 30, 2))
sketch4.addConstraint(Sketcher.Constraint("Horizontal", 25, 2, 31, 2))
sketch4.addConstraint(Sketcher.Constraint("Horizontal", 26, 2, 32, 2))
sketch4.addConstraint(Sketcher.Constraint("Horizontal", 31, 2, 34, 2))
sketch4.addConstraint(Sketcher.Constraint("Horizontal", 30, 2, 35, 2))
sketch4.addConstraint(Sketcher.Constraint("Horizontal", 23, 2, 36, 2))
sketch4.addConstraint(Sketcher.Constraint("Horizontal", 36, 2, 38, 2))
sketch4.addConstraint(Sketcher.Constraint("Horizontal", 28, 2, 39, 2))
sketch4.addConstraint(Sketcher.Constraint("Horizontal", 12, 2, 40, 2))
sketch4.addConstraint(Sketcher.Constraint("Horizontal", 27, 2, 42, 2))
sketch4.addConstraint(Sketcher.Constraint("Horizontal", 41, 2, 43, 2))
sketch4.addConstraint(Sketcher.Constraint("Horizontal", 5, 2, 45, 2))
sketch4.addConstraint(Sketcher.Constraint("Horizontal", 7, 2, 46, 2))
sketch4.addConstraint(Sketcher.Constraint("Horizontal", 29, 2, 48, 2))
sketch4.addConstraint(Sketcher.Constraint("Horizontal", 47, 2, 49, 2))
sketch4.addConstraint(Sketcher.Constraint("Horizontal", 50, 2, 51, 2))
sketch4.addConstraint(Sketcher.Constraint("Horizontal", 49, 2, 52, 2))
sketch4.addConstraint(Sketcher.Constraint("Horizontal", 48, 2, 54, 2))
sketch4.addConstraint(Sketcher.Constraint("Horizontal", 53, 2, 55, 2))
sketch4.addConstraint(Sketcher.Constraint("Horizontal", 56, 2, 57, 2))
sketch4.addConstraint(Sketcher.Constraint("Horizontal", 55, 2, 58, 2))
sketch4.addConstraint(Sketcher.Constraint("Horizontal", 54, 2, 60, 2))
sketch4.addConstraint(Sketcher.Constraint("Horizontal", 59, 2, 61, 2))
sketch4.addConstraint(Sketcher.Constraint("Horizontal", 62, 2, 63, 2))
sketch4.addConstraint(Sketcher.Constraint("Horizontal", 33, 2, 66, 2))
sketch4.addConstraint(Sketcher.Constraint("Horizontal", 44, 2, 69, 2))
sketch4.addConstraint(Sketcher.Constraint("Horizontal", 43, 2, 70, 2))
sketch4.addConstraint(Sketcher.Constraint("Horizontal", 42, 2, 72, 2))
sketch4.addConstraint(Sketcher.Constraint("Horizontal", 71, 2, 73, 2))
sketch4.addConstraint(Sketcher.Constraint("Horizontal", 74, 2, 75, 2))
sketch4.addConstraint(Sketcher.Constraint("Vertical", 5, 2, 12, 2))
sketch4.addConstraint(Sketcher.Constraint("Vertical", 21, 2, 33, 2))
sketch4.addConstraint(Sketcher.Constraint("Vertical", 33, 2, 37, 2))
sketch4.addConstraint(Sketcher.Constraint("Vertical", 16, 2, 39, 2))
sketch4.addConstraint(Sketcher.Constraint("Vertical", 41, 2, 45, 2))
sketch4.addConstraint(Sketcher.Constraint("Vertical", 17, 2, 46, 2))
sketch4.addConstraint(Sketcher.Constraint("Vertical", 23, 2, 52, 2))
sketch4.addConstraint(Sketcher.Constraint("Vertical", 18, 2, 53, 2))
sketch4.addConstraint(Sketcher.Constraint("Vertical", 31, 2, 54, 2))
sketch4.addConstraint(Sketcher.Constraint("Vertical", 25, 2, 60, 2))
sketch4.addConstraint(Sketcher.Constraint("Vertical", 28, 2, 64, 2))
sketch4.addConstraint(Sketcher.Constraint("Vertical", 24, 2, 67, 2))
sketch4.addConstraint(Sketcher.Constraint("Vertical", 67, 2, 69, 2))
sketch4.addConstraint(Sketcher.Constraint("Vertical", 51, 2, 71, 2))
sketch4.addConstraint(Sketcher.Constraint("Vertical", 22, 2, 72, 2))
sketch4.addConstraint(Sketcher.Constraint("Vertical", 30, 2, 74, 2))
sketch4.addConstraint(Sketcher.Constraint("Vertical", 26, 2, 76, 2))
sketch4.addConstraint(Sketcher.Constraint("Equal", 7, 12))
sketch4.addConstraint(Sketcher.Constraint("Equal", 10, 15))
sketch4.addConstraint(Sketcher.Constraint("Equal", 15, 33))
sketch4.addConstraint(Sketcher.Constraint("Equal", 33, 39))
sketch4.addConstraint(Sketcher.Constraint("Equal", 12, 41))
sketch4.addConstraint(Sketcher.Constraint("Equal", 39, 45))
sketch4.addConstraint(Sketcher.Constraint("Equal", 41, 47))
sketch4.addConstraint(Sketcher.Constraint("Equal", 45, 51))
sketch4.addConstraint(Sketcher.Constraint("Equal", 51, 57))
sketch4.addConstraint(Sketcher.Constraint("Equal", 66, 75))
sketch4.addConstraint(Sketcher.Constraint("Equal", 3, 9))
sketch4.addConstraint(Sketcher.Constraint("Equal", 9, 14))
sketch4.addConstraint(Sketcher.Constraint("Equal", 14, 20))
sketch4.addConstraint(Sketcher.Constraint("Equal", 19, 23))
sketch4.addConstraint(Sketcher.Constraint("Equal", 0, 26))
sketch4.addConstraint(Sketcher.Constraint("Equal", 38, 64))
sketch4.addConstraint(Sketcher.Constraint("Angle", 0, Q("-127.5 deg")))
sketch4.addConstraint(Sketcher.Constraint("DistanceY", -1, 1, 4, 2, Q("0.1 mm")))
sketch4.addConstraint(Sketcher.Constraint("DistanceX", 5, 2, 5, 1, Q("2.818662 mm")))
sketch4.addConstraint(Sketcher.Constraint("DistanceX", 63, 2, 63, 1, Q("2.39444 mm")))
sketch4.addConstraint(Sketcher.Constraint("Distance", 2, Q("0.007192 mm")))
sketch4.addConstraint(Sketcher.Constraint("Distance", 8, Q("0.02252 mm")))
sketch4.addConstraint(Sketcher.Constraint("DistanceX", 1, 1, 1, 2, Q("13.865197 mm")))
sketch4.addConstraint(Sketcher.Constraint("DistanceX", 66, 2, 66, 1, Q("2.547906 mm")))
sketch4.addConstraint(Sketcher.Constraint("DistanceX", 0, 2, -1, 1, Q("45.438071 mm")))
pocket2 = doc.addObject("PartDesign::Pocket", "Pocket001")
body.addObject(pocket2)
pocket2.Profile = sketch4
pocket2.Length = 25

doc.recompute()
